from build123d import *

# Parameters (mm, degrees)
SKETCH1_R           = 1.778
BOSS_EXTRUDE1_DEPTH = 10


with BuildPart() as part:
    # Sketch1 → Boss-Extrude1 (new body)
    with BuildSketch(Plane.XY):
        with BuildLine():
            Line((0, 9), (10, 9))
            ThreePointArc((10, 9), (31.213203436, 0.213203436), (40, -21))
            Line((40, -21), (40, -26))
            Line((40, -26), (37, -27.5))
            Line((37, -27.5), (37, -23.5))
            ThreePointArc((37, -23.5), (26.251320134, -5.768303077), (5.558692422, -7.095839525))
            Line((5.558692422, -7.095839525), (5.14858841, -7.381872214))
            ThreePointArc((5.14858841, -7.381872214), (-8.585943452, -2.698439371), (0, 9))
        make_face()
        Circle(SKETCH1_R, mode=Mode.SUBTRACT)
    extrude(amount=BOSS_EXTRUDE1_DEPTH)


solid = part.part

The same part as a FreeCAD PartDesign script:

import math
import FreeCAD as App
import Part
import Sketcher
Q = App.Units.Quantity

doc = App.newDocument("Part")
body = doc.addObject("PartDesign::Body", "Body")

sketch1 = body.newObject("Sketcher::SketchObject", "Sketch")
sketch1.AttachmentSupport = (doc.getObject("XY_Plane"), [""])
sketch1.MapMode = "FlatFace"
sketch1.addGeometry([
    Part.LineSegment(App.Vector(10, 9, 0), App.Vector(0, 9, 0)),
    Part.ArcOfCircle(Part.Circle(App.Vector(0, 0, 0), App.Vector(0, 0, 1), 9), math.radians(90), math.radians(305)),
    Part.LineSegment(App.Vector(5.15, -7.38, 0), App.Vector(5.56, -7.1, 0)),
    Part.ArcOfCircle(Part.Circle(App.Vector(17, -23.5, 0), App.Vector(0, 0, 1), 20), math.radians(0), math.radians(125)),
    Part.LineSegment(App.Vector(37, -23.5, 0), App.Vector(37, -27.5, 0)),
    Part.LineSegment(App.Vector(37, -27.5, 0), App.Vector(40, -26, 0)),
    Part.LineSegment(App.Vector(40, -26, 0), App.Vector(40, -21, 0)),
    Part.ArcOfCircle(Part.Circle(App.Vector(10, -21, 0), App.Vector(0, 0, 1), 30), math.radians(0), math.radians(90)),
    Part.Circle(App.Vector(0, 0, 0), App.Vector(0, 0, 1), 1.78),
], False)
sketch1.addConstraint([
    Sketcher.Constraint("Tangent", 0, 2, 1, 1),
    Sketcher.Constraint("Tangent", 1, 2, 2, 1),
    Sketcher.Constraint("Tangent", 2, 2, 3, 2),
    Sketcher.Constraint("Tangent", 3, 1, 4, 1),
    Sketcher.Constraint("Coincident", 4, 2, 5, 1),
    Sketcher.Constraint("Coincident", 5, 2, 6, 1),
    Sketcher.Constraint("Tangent", 6, 2, 7, 1),
    Sketcher.Constraint("Tangent", 7, 2, 0, 1),
    Sketcher.Constraint("Horizontal", 0),
    Sketcher.Constraint("Vertical", 4),
    Sketcher.Constraint("Vertical", 6),
    Sketcher.Constraint("Coincident", 1, 3, -1, 1),
    Sketcher.Constraint("Coincident", 8, 3, -1, 1),
    Sketcher.Constraint("Radius", 1, Q("9 mm")),
    Sketcher.Constraint("Radius", 3, Q("20 mm")),
    Sketcher.Constraint("Radius", 7, Q("30 mm")),
    Sketcher.Constraint("DistanceX", 0, 2, 0, 1, Q("10 mm")),
    Sketcher.Constraint("DistanceY", 4, 2, 4, 1, Q("4 mm")),
    Sketcher.Constraint("DistanceY", 6, 1, 6, 2, Q("5 mm")),
    Sketcher.Constraint("Diameter", 8, Q("3.556 mm")),
    Sketcher.Constraint("DistanceX", -1, 1, 3, 3, Q("17 mm")),
    Sketcher.Constraint("Distance", 2, Q("0.5 mm")),
])
pad1 = body.newObject("PartDesign::Pad", "Pad")
pad1.Profile = sketch1
pad1.Length = 10

doc.recompute()
